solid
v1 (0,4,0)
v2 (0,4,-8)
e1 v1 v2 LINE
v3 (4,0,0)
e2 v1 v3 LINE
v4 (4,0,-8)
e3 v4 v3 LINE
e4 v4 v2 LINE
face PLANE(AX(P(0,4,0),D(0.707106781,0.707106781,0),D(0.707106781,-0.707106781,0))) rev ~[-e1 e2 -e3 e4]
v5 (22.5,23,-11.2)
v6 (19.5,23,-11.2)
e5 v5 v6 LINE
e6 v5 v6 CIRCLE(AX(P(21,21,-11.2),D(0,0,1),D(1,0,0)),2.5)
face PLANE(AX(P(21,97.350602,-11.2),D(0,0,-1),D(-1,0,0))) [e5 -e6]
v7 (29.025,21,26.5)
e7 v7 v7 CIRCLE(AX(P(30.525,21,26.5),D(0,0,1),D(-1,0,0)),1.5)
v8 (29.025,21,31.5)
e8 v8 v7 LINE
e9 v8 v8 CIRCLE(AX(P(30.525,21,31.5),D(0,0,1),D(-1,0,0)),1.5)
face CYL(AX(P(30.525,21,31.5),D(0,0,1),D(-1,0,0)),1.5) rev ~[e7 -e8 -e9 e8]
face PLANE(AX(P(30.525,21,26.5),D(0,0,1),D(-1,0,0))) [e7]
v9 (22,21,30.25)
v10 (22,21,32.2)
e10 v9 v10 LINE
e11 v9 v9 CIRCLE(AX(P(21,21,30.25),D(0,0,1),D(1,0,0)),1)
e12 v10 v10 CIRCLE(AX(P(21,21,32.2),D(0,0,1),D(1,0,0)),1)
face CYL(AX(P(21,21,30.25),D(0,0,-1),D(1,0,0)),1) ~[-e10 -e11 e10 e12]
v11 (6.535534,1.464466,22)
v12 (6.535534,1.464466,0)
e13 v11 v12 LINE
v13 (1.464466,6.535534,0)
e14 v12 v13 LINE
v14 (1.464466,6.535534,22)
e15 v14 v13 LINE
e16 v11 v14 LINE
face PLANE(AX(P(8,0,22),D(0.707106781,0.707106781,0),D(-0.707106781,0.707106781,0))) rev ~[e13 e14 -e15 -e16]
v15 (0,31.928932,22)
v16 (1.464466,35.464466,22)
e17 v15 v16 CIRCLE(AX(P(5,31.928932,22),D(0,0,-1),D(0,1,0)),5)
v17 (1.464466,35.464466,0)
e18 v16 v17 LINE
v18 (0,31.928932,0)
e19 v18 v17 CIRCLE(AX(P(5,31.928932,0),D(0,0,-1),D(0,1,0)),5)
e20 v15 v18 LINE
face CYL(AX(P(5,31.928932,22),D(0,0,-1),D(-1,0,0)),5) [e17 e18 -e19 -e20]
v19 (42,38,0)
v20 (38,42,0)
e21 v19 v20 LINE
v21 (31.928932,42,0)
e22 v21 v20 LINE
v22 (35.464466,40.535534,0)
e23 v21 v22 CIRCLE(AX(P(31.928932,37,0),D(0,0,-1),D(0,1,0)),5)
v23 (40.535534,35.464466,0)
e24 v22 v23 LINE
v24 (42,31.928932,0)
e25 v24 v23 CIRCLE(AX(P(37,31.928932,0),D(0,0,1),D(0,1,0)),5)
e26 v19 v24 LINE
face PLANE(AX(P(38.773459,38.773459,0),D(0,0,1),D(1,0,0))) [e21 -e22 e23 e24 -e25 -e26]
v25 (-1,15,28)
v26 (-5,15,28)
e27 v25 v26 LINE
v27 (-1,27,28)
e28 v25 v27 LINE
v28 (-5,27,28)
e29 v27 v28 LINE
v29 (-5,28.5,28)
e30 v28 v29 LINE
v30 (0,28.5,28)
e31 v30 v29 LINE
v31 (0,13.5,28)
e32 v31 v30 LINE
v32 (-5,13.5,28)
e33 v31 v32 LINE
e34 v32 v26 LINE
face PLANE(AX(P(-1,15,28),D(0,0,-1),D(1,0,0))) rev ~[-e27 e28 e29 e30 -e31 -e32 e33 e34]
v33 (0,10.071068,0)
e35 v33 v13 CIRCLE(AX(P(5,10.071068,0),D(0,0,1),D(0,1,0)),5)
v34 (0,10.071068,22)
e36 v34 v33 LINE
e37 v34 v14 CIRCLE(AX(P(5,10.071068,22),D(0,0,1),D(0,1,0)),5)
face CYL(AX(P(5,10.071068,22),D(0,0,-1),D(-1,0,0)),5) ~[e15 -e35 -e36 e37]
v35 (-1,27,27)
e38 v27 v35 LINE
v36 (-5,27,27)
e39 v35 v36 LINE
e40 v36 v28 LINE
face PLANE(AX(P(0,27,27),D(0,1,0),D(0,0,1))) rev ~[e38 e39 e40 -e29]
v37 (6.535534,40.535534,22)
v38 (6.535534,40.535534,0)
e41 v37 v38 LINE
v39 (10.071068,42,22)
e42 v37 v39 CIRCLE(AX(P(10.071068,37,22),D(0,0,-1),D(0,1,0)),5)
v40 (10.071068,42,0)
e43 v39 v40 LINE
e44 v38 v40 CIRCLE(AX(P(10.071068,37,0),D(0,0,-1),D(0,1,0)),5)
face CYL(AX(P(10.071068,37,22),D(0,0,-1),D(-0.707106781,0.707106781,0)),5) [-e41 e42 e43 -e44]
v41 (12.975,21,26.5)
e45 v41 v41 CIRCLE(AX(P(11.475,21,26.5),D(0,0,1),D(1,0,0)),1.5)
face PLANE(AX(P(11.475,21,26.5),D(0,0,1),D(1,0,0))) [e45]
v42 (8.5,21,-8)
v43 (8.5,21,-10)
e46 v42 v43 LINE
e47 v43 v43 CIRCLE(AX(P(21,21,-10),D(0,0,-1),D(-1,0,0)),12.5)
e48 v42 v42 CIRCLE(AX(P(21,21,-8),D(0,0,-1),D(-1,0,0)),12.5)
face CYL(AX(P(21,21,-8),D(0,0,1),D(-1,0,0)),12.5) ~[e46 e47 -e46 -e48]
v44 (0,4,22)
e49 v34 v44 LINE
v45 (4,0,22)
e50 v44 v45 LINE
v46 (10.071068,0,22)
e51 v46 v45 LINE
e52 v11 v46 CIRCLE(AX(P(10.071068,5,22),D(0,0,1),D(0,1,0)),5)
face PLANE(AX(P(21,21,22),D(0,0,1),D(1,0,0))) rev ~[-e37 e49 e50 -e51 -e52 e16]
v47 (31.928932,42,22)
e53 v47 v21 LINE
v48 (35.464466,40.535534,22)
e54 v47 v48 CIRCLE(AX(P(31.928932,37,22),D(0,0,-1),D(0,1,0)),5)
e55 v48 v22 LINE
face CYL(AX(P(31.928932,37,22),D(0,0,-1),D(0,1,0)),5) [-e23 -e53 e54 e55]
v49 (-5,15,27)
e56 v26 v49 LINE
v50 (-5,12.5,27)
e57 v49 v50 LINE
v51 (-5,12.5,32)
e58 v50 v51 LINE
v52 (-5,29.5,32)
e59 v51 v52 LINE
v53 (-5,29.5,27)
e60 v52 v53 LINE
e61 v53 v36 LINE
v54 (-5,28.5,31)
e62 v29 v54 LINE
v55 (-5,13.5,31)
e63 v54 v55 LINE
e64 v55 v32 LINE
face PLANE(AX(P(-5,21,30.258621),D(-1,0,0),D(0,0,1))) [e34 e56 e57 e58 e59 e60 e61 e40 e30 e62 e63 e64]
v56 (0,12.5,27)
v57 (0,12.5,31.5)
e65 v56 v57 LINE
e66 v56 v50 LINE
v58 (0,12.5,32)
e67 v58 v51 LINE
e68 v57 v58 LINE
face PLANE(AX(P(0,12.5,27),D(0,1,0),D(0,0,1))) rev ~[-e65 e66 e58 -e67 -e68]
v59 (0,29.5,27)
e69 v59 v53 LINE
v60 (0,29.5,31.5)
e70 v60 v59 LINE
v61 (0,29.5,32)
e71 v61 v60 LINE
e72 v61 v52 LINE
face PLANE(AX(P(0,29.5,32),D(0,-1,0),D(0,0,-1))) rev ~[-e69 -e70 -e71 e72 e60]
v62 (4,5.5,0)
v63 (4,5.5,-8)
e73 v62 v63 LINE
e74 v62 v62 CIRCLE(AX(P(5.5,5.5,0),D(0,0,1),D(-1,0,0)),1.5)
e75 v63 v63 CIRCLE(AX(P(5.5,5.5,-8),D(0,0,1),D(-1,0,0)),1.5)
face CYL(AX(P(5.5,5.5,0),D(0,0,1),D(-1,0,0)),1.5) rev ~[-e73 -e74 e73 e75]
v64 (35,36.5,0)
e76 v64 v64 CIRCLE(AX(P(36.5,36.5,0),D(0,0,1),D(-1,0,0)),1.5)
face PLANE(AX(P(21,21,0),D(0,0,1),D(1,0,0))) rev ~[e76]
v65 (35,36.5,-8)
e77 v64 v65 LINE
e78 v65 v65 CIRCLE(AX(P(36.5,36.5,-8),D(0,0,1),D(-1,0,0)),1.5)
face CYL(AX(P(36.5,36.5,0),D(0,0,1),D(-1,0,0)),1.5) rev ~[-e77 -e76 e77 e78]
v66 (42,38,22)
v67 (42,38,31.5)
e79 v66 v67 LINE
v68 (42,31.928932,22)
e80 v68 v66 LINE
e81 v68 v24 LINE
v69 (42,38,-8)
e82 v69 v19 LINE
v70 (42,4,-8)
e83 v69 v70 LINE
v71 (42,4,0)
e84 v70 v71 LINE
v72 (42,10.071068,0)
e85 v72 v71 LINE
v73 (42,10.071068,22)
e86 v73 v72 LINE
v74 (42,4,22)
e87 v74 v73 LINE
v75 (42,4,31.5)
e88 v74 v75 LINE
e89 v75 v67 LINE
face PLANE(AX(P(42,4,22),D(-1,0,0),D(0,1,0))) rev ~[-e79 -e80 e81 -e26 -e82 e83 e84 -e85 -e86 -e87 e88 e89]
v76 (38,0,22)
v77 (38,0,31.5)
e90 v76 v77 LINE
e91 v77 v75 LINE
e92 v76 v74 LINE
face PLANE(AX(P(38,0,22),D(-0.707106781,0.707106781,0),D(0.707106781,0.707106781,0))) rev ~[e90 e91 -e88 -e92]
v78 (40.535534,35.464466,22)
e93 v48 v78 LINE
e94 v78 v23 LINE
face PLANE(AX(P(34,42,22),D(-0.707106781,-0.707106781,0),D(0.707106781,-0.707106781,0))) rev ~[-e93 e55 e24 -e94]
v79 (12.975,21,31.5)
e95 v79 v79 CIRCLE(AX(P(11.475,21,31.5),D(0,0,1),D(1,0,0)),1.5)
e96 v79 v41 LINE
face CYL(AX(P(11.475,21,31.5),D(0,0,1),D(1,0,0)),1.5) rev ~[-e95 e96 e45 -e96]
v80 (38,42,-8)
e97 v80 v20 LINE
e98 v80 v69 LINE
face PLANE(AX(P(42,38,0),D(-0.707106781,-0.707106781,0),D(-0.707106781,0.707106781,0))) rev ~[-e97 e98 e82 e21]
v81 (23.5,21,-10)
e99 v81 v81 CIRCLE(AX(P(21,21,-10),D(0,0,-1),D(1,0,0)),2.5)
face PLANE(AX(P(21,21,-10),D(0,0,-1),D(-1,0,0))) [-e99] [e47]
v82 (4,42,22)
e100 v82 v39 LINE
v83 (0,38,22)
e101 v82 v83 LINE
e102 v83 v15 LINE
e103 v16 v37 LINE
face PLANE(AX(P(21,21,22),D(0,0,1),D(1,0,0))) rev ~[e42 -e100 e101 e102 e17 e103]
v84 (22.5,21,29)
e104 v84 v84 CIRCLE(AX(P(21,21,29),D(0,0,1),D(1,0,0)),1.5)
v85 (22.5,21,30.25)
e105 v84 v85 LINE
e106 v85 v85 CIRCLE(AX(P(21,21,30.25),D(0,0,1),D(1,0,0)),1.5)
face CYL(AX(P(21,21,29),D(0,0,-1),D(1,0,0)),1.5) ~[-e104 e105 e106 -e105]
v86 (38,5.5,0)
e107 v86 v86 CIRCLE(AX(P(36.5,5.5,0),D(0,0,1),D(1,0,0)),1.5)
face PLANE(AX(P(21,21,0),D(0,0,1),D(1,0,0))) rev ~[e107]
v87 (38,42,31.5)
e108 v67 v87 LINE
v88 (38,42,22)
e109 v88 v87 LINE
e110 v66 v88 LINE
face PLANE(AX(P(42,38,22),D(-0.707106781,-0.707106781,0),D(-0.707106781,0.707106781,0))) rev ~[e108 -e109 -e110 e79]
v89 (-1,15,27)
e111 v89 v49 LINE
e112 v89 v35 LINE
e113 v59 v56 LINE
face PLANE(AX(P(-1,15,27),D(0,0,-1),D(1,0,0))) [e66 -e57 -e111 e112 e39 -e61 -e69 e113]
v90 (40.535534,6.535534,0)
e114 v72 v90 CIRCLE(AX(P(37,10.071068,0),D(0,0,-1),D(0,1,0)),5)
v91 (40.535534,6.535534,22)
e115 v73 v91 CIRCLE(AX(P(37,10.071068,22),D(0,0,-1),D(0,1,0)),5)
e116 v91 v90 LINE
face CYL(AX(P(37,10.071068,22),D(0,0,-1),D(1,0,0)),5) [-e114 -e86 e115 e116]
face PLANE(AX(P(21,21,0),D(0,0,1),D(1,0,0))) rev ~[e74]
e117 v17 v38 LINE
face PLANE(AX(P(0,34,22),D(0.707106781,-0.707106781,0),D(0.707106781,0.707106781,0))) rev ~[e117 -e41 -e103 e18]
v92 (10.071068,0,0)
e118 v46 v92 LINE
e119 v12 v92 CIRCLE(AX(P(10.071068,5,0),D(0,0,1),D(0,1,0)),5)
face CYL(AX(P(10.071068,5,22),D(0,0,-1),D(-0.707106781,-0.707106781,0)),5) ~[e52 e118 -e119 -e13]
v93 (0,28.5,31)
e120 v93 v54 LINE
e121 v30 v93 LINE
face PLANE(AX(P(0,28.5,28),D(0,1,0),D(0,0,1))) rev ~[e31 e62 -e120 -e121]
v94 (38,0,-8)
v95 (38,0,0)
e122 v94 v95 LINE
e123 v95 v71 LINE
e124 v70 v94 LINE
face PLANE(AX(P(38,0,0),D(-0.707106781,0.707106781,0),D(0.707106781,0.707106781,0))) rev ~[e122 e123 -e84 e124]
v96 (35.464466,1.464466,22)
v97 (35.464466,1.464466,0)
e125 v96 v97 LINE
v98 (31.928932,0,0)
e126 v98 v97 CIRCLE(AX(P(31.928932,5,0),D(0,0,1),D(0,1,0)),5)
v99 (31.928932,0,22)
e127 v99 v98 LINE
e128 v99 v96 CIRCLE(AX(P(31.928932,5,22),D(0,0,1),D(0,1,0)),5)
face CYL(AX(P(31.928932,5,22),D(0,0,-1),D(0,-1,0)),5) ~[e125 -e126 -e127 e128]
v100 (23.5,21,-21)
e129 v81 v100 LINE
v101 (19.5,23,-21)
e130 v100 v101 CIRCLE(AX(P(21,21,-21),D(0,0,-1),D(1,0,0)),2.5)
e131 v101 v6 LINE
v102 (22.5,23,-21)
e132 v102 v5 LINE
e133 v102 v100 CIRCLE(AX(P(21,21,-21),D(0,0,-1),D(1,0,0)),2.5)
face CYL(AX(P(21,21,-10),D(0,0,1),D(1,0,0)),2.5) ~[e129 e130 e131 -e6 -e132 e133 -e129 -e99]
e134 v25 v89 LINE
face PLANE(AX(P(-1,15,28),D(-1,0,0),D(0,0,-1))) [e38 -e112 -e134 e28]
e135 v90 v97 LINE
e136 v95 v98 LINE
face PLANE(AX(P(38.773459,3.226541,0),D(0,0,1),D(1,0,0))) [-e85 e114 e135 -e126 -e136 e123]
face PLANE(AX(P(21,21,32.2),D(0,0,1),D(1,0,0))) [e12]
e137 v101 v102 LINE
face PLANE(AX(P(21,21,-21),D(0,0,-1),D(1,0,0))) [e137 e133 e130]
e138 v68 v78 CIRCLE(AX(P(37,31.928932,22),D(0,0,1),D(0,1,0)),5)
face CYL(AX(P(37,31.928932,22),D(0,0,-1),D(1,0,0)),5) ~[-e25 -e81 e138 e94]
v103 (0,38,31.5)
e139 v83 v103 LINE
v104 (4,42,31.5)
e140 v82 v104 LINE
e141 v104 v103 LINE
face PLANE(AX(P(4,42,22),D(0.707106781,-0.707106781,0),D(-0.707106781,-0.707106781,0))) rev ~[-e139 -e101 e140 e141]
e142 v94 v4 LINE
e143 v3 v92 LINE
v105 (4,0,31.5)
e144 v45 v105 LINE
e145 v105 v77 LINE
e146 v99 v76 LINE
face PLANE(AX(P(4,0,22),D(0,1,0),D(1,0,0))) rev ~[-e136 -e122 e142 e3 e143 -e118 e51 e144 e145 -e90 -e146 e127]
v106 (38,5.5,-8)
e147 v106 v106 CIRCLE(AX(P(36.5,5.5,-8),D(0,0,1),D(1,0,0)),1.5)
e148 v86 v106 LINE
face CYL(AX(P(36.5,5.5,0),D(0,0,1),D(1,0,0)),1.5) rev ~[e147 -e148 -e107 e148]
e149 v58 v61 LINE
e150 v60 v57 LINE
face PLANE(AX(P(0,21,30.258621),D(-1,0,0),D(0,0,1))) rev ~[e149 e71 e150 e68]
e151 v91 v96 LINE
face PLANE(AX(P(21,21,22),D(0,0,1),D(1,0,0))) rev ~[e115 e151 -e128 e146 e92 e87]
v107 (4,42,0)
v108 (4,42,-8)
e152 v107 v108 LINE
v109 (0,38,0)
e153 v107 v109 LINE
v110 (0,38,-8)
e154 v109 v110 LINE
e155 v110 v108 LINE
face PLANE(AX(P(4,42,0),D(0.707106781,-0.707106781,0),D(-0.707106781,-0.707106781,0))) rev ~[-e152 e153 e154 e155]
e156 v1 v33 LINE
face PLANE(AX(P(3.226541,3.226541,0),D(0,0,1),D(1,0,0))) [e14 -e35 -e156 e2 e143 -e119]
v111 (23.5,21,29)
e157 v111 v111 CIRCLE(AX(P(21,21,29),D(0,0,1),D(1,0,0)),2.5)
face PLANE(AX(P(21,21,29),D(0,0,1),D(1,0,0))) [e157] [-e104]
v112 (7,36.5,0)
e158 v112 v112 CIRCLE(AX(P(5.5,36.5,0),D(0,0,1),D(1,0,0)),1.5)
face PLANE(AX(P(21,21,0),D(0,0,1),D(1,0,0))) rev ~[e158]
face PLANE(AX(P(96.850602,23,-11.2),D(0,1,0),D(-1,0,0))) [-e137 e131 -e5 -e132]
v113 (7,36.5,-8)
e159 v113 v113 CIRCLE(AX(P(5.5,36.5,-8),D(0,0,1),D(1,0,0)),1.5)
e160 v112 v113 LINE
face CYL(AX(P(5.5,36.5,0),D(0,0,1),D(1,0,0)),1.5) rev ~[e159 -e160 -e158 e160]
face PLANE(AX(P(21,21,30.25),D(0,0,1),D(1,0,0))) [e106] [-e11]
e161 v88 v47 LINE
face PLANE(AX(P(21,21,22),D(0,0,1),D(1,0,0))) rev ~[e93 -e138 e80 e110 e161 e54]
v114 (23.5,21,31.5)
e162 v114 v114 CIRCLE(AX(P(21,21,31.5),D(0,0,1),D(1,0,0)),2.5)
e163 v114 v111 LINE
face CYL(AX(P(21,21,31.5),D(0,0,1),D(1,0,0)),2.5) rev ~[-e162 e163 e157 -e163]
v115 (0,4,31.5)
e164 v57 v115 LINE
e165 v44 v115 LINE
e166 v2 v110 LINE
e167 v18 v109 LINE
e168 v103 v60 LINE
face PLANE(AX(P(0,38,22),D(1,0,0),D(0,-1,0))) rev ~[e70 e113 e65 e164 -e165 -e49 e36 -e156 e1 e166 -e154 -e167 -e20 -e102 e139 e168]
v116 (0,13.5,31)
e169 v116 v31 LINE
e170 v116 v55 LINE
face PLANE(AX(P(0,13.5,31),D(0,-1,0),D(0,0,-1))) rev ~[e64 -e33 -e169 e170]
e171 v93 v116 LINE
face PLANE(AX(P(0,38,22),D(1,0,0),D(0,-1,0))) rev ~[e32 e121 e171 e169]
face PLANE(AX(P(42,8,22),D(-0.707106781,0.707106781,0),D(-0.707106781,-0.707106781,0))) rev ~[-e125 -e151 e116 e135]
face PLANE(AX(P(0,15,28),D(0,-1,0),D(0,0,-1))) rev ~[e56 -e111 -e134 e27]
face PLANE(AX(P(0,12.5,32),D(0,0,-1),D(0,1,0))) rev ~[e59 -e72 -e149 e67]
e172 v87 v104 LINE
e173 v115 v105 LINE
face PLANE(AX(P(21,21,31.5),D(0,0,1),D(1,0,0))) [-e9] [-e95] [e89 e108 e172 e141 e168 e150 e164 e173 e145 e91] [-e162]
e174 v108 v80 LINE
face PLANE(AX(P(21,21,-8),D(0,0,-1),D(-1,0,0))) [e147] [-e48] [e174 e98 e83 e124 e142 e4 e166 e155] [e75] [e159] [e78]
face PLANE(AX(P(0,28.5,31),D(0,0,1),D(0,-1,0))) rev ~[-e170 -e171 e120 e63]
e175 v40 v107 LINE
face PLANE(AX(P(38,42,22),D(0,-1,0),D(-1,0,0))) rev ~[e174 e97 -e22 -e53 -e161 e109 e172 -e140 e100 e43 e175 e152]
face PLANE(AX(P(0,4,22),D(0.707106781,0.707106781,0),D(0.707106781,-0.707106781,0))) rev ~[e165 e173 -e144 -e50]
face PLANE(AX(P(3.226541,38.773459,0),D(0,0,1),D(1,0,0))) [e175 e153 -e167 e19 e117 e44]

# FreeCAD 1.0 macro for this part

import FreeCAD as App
import Part
import Sketcher

V = App.Vector
Q = App.Units.Quantity


def edges_at(feature, points):
    """Names of the edges that pass closest to the given points."""
    edges = feature.Shape.Edges
    near = lambda p: min(range(len(edges)), key=lambda i: edges[i].distToShape(Part.Vertex(*p))[0])
    return sorted({f"Edge{near(p) + 1}" for p in points})

doc = App.newDocument("Part")
body = doc.addObject("PartDesign::Body", "Body")

# Sketch on XY plane
sketch1 = body.newObject("Sketcher::SketchObject", "Sketch")
sketch1.AttachmentSupport = (doc.getObject("XY_Plane"), [""])
sketch1.MapMode = "FlatFace"
sketch1.addGeometry([
    Part.LineSegment(V(4, 42, 0), V(0, 38, 0)),  # 0
    Part.LineSegment(V(0, 38, 0), V(0, 4, 0)),  # 1
    Part.LineSegment(V(0, 4, 0), V(4, 0, 0)),  # 2
    Part.LineSegment(V(4, 0, 0), V(38, 0, 0)),  # 3
    Part.LineSegment(V(38, 0, 0), V(42, 4, 0)),  # 4
    Part.LineSegment(V(42, 4, 0), V(42, 38, 0)),  # 5
    Part.LineSegment(V(42, 38, 0), V(38, 42, 0)),  # 6
    Part.LineSegment(V(38, 42, 0), V(4, 42, 0)),  # 7
], False)
sketch1.addConstraint([
    Sketcher.Constraint("Coincident", 0, 2, 1, 1),
    Sketcher.Constraint("Coincident", 1, 2, 2, 1),
    Sketcher.Constraint("Coincident", 2, 2, 3, 1),
    Sketcher.Constraint("Coincident", 3, 2, 4, 1),
    Sketcher.Constraint("Coincident", 4, 2, 5, 1),
    Sketcher.Constraint("Coincident", 5, 2, 6, 1),
    Sketcher.Constraint("Coincident", 6, 2, 7, 1),
    Sketcher.Constraint("Coincident", 7, 2, 0, 1),
    Sketcher.Constraint("Vertical", 1),
    Sketcher.Constraint("Horizontal", 3),
    Sketcher.Constraint("Vertical", 5),
    Sketcher.Constraint("Horizontal", 7),
    Sketcher.Constraint("PointOnObject", 0, 2, -2),
    Sketcher.Constraint("PointOnObject", 2, 2, -1),
    Sketcher.Constraint("Perpendicular", 0, 2),
    Sketcher.Constraint("Perpendicular", 2, 4),
    Sketcher.Constraint("Perpendicular", 4, 6),
    Sketcher.Constraint("Horizontal", 1, 2, 4, 2),
    Sketcher.Constraint("Horizontal", 0, 2, 5, 2),
    Sketcher.Constraint("Vertical", 3, 2, 6, 2),
    Sketcher.Constraint("Vertical", 2, 2, 7, 2),
    Sketcher.Constraint("Equal", 7, 1),
    Sketcher.Constraint("DistanceX", 3, 1, 3, 2, Q("34 mm")),
    Sketcher.Constraint("DistanceY", -1, 1, 0, 2, Q("38 mm")),
])
pad1 = body.newObject("PartDesign::Pad", "Pad")
pad1.Profile = sketch1
pad1.Length = 8
pad1.Reversed = True

# Sketch on XY plane
sketch2 = body.newObject("Sketcher::SketchObject", "Sketch001")
sketch2.AttachmentSupport = (doc.getObject("XY_Plane"), [""])
sketch2.MapMode = "FlatFace"
sketch2.addGeometry(Part.Circle(V(5.5, 36.5, 0), V(0, 0, 1), 1.5), False)
sketch2.addConstraint([
    Sketcher.Constraint("Diameter", 0, Q("3 mm")),
    Sketcher.Constraint("DistanceX", -1, 1, 0, 3, Q("5.5 mm")),
    Sketcher.Constraint("DistanceY", -1, 1, 0, 3, Q("36.5 mm")),
])
pocket1 = body.newObject("PartDesign::Pocket", "Pocket")
pocket1.Profile = sketch2
pocket1.Type = "UpToFirst"

# Sketch on XY plane
sketch3 = body.newObject("Sketcher::SketchObject", "Sketch002")
sketch3.AttachmentSupport = (doc.getObject("XY_Plane"), [""])
sketch3.MapMode = "FlatFace"
sketch3.addGeometry(Part.Circle(V(5.5, 5.5, 0), V(0, 0, 1), 1.5), False)
sketch3.addConstraint([
    Sketcher.Constraint("Diameter", 0, Q("3 mm")),
    Sketcher.Constraint("DistanceX", -1, 1, 0, 3, Q("5.5 mm")),
    Sketcher.Constraint("DistanceY", -1, 1, 0, 3, Q("5.5 mm")),
])
pocket2 = body.newObject("PartDesign::Pocket", "Pocket001")
pocket2.Profile = sketch3
pocket2.Type = "UpToFirst"

# Sketch on XY plane
sketch4 = body.newObject("Sketcher::SketchObject", "Sketch003")
sketch4.AttachmentSupport = (doc.getObject("XY_Plane"), [""])
sketch4.MapMode = "FlatFace"
sketch4.addGeometry(Part.Circle(V(36.5, 36.5, 0), V(0, 0, 1), 1.5), False)
sketch4.addConstraint([
    Sketcher.Constraint("Diameter", 0, Q("3 mm")),
    Sketcher.Constraint("DistanceX", -1, 1, 0, 3, Q("36.5 mm")),
    Sketcher.Constraint("DistanceY", -1, 1, 0, 3, Q("36.5 mm")),
])
pocket3 = body.newObject("PartDesign::Pocket", "Pocket002")
pocket3.Profile = sketch4
pocket3.Type = "UpToFirst"

# Sketch on XY plane
sketch5 = body.newObject("Sketcher::SketchObject", "Sketch004")
sketch5.AttachmentSupport = (doc.getObject("XY_Plane"), [""])
sketch5.MapMode = "FlatFace"
sketch5.addGeometry(Part.Circle(V(36.5, 5.5, 0), V(0, 0, 1), 1.5), False)
sketch5.addConstraint([
    Sketcher.Constraint("Diameter", 0, Q("3 mm")),
    Sketcher.Constraint("DistanceX", -1, 1, 0, 3, Q("36.5 mm")),
    Sketcher.Constraint("DistanceY", -1, 1, 0, 3, Q("5.5 mm")),
])
pocket4 = body.newObject("PartDesign::Pocket", "Pocket003")
pocket4.Profile = sketch5
pocket4.Type = "UpToFirst"

# Sketch on XY plane
sketch6 = body.newObject("Sketcher::SketchObject", "Sketch005")
sketch6.AttachmentSupport = (doc.getObject("XY_Plane"), [""])
sketch6.MapMode = "FlatFace"
sketch6.addGeometry([
    Part.LineSegment(V(0, 4, 0), V(4, 0, 0)),  # 0
    Part.LineSegment(V(4, 0, 0), V(38, 0, 0)),  # 1
    Part.LineSegment(V(38, 0, 0), V(42, 4, 0)),  # 2
    Part.LineSegment(V(42, 4, 0), V(42, 38, 0)),  # 3
    Part.LineSegment(V(42, 38, 0), V(38, 42, 0)),  # 4
    Part.LineSegment(V(38, 42, 0), V(4, 42, 0)),  # 5
    Part.LineSegment(V(4, 42, 0), V(0, 38, 0)),  # 6
    Part.LineSegment(V(0, 38, 0), V(0, 4, 0)),  # 7
], False)
sketch6.addConstraint([
    Sketcher.Constraint("Coincident", 0, 2, 1, 1),
    Sketcher.Constraint("Coincident", 1, 2, 2, 1),
    Sketcher.Constraint("Coincident", 2, 2, 3, 1),
    Sketcher.Constraint("Coincident", 3, 2, 4, 1),
    Sketcher.Constraint("Coincident", 4, 2, 5, 1),
    Sketcher.Constraint("Coincident", 5, 2, 6, 1),
    Sketcher.Constraint("Coincident", 6, 2, 7, 1),
    Sketcher.Constraint("Coincident", 7, 2, 0, 1),
    Sketcher.Constraint("Horizontal", 1),
    Sketcher.Constraint("Vertical", 3),
    Sketcher.Constraint("Horizontal", 5),
    Sketcher.Constraint("Vertical", 7),
    Sketcher.Constraint("PointOnObject", 0, 2, -1),
    Sketcher.Constraint("PointOnObject", 6, 2, -2),
    Sketcher.Constraint("Perpendicular", 0, 2),
    Sketcher.Constraint("Perpendicular", 2, 4),
    Sketcher.Constraint("Perpendicular", 4, 6),
    Sketcher.Constraint("Horizontal", 3, 2, 6, 2),
    Sketcher.Constraint("Horizontal", 2, 2, 7, 2),
    Sketcher.Constraint("Vertical", 1, 2, 4, 2),
    Sketcher.Constraint("Vertical", 0, 2, 5, 2),
    Sketcher.Constraint("Equal", 5, 3),
    Sketcher.Constraint("DistanceX", 1, 1, 1, 2, Q("34 mm")),
    Sketcher.Constraint("DistanceX", -1, 1, 0, 2, Q("4 mm")),
])
pad2 = body.newObject("PartDesign::Pad", "Pad001")
pad2.Profile = sketch6
pad2.Length = 22

# Sketch on XY plane
sketch7 = body.newObject("Sketcher::SketchObject", "Sketch006")
sketch7.AttachmentSupport = (doc.getObject("XY_Plane"), [""])
sketch7.MapMode = "FlatFace"
sketch7.AttachmentOffset = App.Placement(V(0, 0, 22), App.Rotation())
sketch7.addGeometry([
    Part.LineSegment(V(8, 0, 0), V(0, 8, 0)),  # 0
    Part.LineSegment(V(0, 8, 0), V(0, 4, 0)),  # 1
    Part.LineSegment(V(0, 4, 0), V(4, 0, 0)),  # 2
    Part.LineSegment(V(4, 0, 0), V(8, 0, 0)),  # 3
    Part.LineSegment(V(42, 8, 0), V(34, 0, 0)),  # 4
    Part.LineSegment(V(34, 0, 0), V(38, 0, 0)),  # 5
    Part.LineSegment(V(38, 0, 0), V(42, 4, 0)),  # 6
    Part.LineSegment(V(42, 4, 0), V(42, 8, 0)),  # 7
    Part.LineSegment(V(38, 42, 0), V(34, 42, 0)),  # 8
    Part.LineSegment(V(34, 42, 0), V(42, 34, 0)),  # 9
    Part.LineSegment(V(42, 34, 0), V(42, 38, 0)),  # 10
    Part.LineSegment(V(42, 38, 0), V(38, 42, 0)),  # 11
    Part.LineSegment(V(0, 38, 0), V(0, 34, 0)),  # 12
    Part.LineSegment(V(0, 34, 0), V(8, 42, 0)),  # 13
    Part.LineSegment(V(8, 42, 0), V(4, 42, 0)),  # 14
    Part.LineSegment(V(4, 42, 0), V(0, 38, 0)),  # 15
], False)
sketch7.addConstraint([
    Sketcher.Constraint("Coincident", 0, 2, 1, 1),
    Sketcher.Constraint("Coincident", 1, 2, 2, 1),
    Sketcher.Constraint("Coincident", 2, 2, 3, 1),
    Sketcher.Constraint("Coincident", 3, 2, 0, 1),
    Sketcher.Constraint("Coincident", 4, 2, 5, 1),
    Sketcher.Constraint("Coincident", 5, 2, 6, 1),
    Sketcher.Constraint("Coincident", 6, 2, 7, 1),
    Sketcher.Constraint("Coincident", 7, 2, 4, 1),
    Sketcher.Constraint("Coincident", 8, 2, 9, 1),
    Sketcher.Constraint("Coincident", 9, 2, 10, 1),
    Sketcher.Constraint("Coincident", 10, 2, 11, 1),
    Sketcher.Constraint("Coincident", 11, 2, 8, 1),
    Sketcher.Constraint("Coincident", 12, 2, 13, 1),
    Sketcher.Constraint("Coincident", 13, 2, 14, 1),
    Sketcher.Constraint("Coincident", 14, 2, 15, 1),
    Sketcher.Constraint("Coincident", 15, 2, 12, 1),
    Sketcher.Constraint("Vertical", 1),
    Sketcher.Constraint("Horizontal", 3),
    Sketcher.Constraint("Horizontal", 5),
    Sketcher.Constraint("Vertical", 7),
    Sketcher.Constraint("Horizontal", 8),
    Sketcher.Constraint("Vertical", 10),
    Sketcher.Constraint("Vertical", 12),
    Sketcher.Constraint("Horizontal", 14),
    Sketcher.Constraint("PointOnObject", 0, 2, -2),
    Sketcher.Constraint("PointOnObject", 2, 2, -1),
    Sketcher.Constraint("PointOnObject", 4, 2, -1),
    Sketcher.Constraint("PointOnObject", 12, 2, -2),
    Sketcher.Constraint("Parallel", 0, 2),
    Sketcher.Constraint("Perpendicular", 2, 4),
    Sketcher.Constraint("Parallel", 4, 6),
    Sketcher.Constraint("Perpendicular", 6, 9),
    Sketcher.Constraint("Parallel", 9, 11),
    Sketcher.Constraint("Perpendicular", 11, 13),
    Sketcher.Constraint("Parallel", 13, 15),
    Sketcher.Constraint("Horizontal", 1, 2, 6, 2),
    Sketcher.Constraint("Horizontal", 0, 2, 7, 2),
    Sketcher.Constraint("Horizontal", 9, 2, 12, 2),
    Sketcher.Constraint("Horizontal", 11, 2, 13, 2),
    Sketcher.Constraint("Horizontal", 10, 2, 15, 2),
    Sketcher.Constraint("Vertical", 4, 2, 8, 2),
    Sketcher.Constraint("Vertical", 7, 2, 9, 2),
    Sketcher.Constraint("Vertical", 5, 2, 11, 2),
    Sketcher.Constraint("Vertical", 3, 2, 13, 2),
    Sketcher.Constraint("DistanceX", 3, 1, 3, 2, Q("4 mm")),
    Sketcher.Constraint("DistanceY", -1, 1, 0, 2, Q("8 mm")),
    Sketcher.Constraint("DistanceX", -1, 1, 4, 2, Q("34 mm")),
    Sketcher.Constraint("DistanceY", -1, 1, 8, 2, Q("42 mm")),
])
pocket5 = body.newObject("PartDesign::Pocket", "Pocket004")
pocket5.Profile = sketch7
pocket5.Length = 22

# Sketch on XY plane
sketch8 = body.newObject("Sketcher::SketchObject", "Sketch007")
sketch8.AttachmentSupport = (doc.getObject("XY_Plane"), [""])
sketch8.MapMode = "FlatFace"
sketch8.AttachmentOffset = App.Placement(V(0, 0, 22), App.Rotation())
sketch8.addGeometry([
    Part.LineSegment(V(0, 38, 0), V(0, 4, 0)),  # 0
    Part.LineSegment(V(0, 4, 0), V(4, 0, 0)),  # 1
    Part.LineSegment(V(4, 0, 0), V(38, 0, 0)),  # 2
    Part.LineSegment(V(38, 0, 0), V(42, 4, 0)),  # 3
    Part.LineSegment(V(42, 4, 0), V(42, 38, 0)),  # 4
    Part.LineSegment(V(42, 38, 0), V(38, 42, 0)),  # 5
    Part.LineSegment(V(38, 42, 0), V(4, 42, 0)),  # 6
    Part.LineSegment(V(4, 42, 0), V(0, 38, 0)),  # 7
], False)
sketch8.addConstraint([
    Sketcher.Constraint("Coincident", 0, 2, 1, 1),
    Sketcher.Constraint("Coincident", 1, 2, 2, 1),
    Sketcher.Constraint("Coincident", 2, 2, 3, 1),
    Sketcher.Constraint("Coincident", 3, 2, 4, 1),
    Sketcher.Constraint("Coincident", 4, 2, 5, 1),
    Sketcher.Constraint("Coincident", 5, 2, 6, 1),
    Sketcher.Constraint("Coincident", 6, 2, 7, 1),
    Sketcher.Constraint("Coincident", 7, 2, 0, 1),
    Sketcher.Constraint("Vertical", 0),
    Sketcher.Constraint("Horizontal", 2),
    Sketcher.Constraint("Vertical", 4),
    Sketcher.Constraint("Horizontal", 6),
    Sketcher.Constraint("PointOnObject", 0, 2, -2),
    Sketcher.Constraint("PointOnObject", 1, 2, -1),
    Sketcher.Constraint("Perpendicular", 1, 3),
    Sketcher.Constraint("Perpendicular", 3, 5),
    Sketcher.Constraint("Perpendicular", 5, 7),
    Sketcher.Constraint("Horizontal", 0, 2, 3, 2),
    Sketcher.Constraint("Horizontal", 4, 2, 7, 2),
    Sketcher.Constraint("Vertical", 2, 2, 5, 2),
    Sketcher.Constraint("Vertical", 1, 2, 6, 2),
    Sketcher.Constraint("Equal", 6, 0),
    Sketcher.Constraint("DistanceX", 2, 1, 2, 2, Q("34 mm")),
    Sketcher.Constraint("DistanceY", -1, 1, 0, 2, Q("4 mm")),
])
pad3 = body.newObject("PartDesign::Pad", "Pad002")
pad3.Profile = sketch8
pad3.Length = 9.5

# Sketch on XY plane
sketch9 = body.newObject("Sketcher::SketchObject", "Sketch008")
sketch9.AttachmentSupport = (doc.getObject("XY_Plane"), [""])
sketch9.MapMode = "FlatFace"
sketch9.AttachmentOffset = App.Placement(V(0, 0, 31.5), App.Rotation())
sketch9.addGeometry([
    Part.Circle(V(11.5, 21, 0), V(0, 0, 1), 1.5),
    Part.Circle(V(30.5, 21, 0), V(0, 0, 1), 1.5),
], False)
sketch9.addConstraint([
    Sketcher.Constraint("Equal", 0, 1),
    Sketcher.Constraint("Horizontal", 0, 3, 1, 3),
    Sketcher.Constraint("Diameter", 0, Q("3 mm")),
    Sketcher.Constraint("DistanceY", -1, 1, 0, 3, Q("21 mm")),
    Sketcher.Constraint("DistanceX", 0, 3, 1, 3, Q("19.05 mm")),
    Sketcher.Constraint("DistanceX", -1, 1, 0, 3, Q("11.475 mm")),
])
pocket6 = body.newObject("PartDesign::Pocket", "Pocket005")
pocket6.Profile = sketch9
pocket6.Length = 5

# Sketch on XY plane
sketch10 = body.newObject("Sketcher::SketchObject", "Sketch009")
sketch10.AttachmentSupport = (doc.getObject("XY_Plane"), [""])
sketch10.MapMode = "FlatFace"
sketch10.AttachmentOffset = App.Placement(V(0, 0, 31.5), App.Rotation())
sketch10.addGeometry(Part.Circle(V(21, 21, 0), V(0, 0, 1), 2.5), False)
sketch10.addConstraint([
    Sketcher.Constraint("Diameter", 0, Q("5 mm")),
    Sketcher.Constraint("DistanceX", -1, 1, 0, 3, Q("21 mm")),
    Sketcher.Constraint("DistanceY", -1, 1, 0, 3, Q("21 mm")),
])
pocket7 = body.newObject("PartDesign::Pocket", "Pocket006")
pocket7.Profile = sketch10
pocket7.Length = 2.5

# Sketch on XY plane
sketch11 = body.newObject("Sketcher::SketchObject", "Sketch010")
sketch11.AttachmentSupport = (doc.getObject("XY_Plane"), [""])
sketch11.MapMode = "FlatFace"
sketch11.AttachmentOffset = App.Placement(V(0, 0, 29), App.Rotation())
sketch11.addGeometry(Part.Circle(V(21, 21, 0), V(0, 0, 1), 1.5), False)
sketch11.addConstraint([
    Sketcher.Constraint("Diameter", 0, Q("3 mm")),
    Sketcher.Constraint("DistanceX", -1, 1, 0, 3, Q("21 mm")),
    Sketcher.Constraint("DistanceY", -1, 1, 0, 3, Q("21 mm")),
])
pad4 = body.newObject("PartDesign::Pad", "Pad003")
pad4.Profile = sketch11
pad4.Length = 1.25

# Sketch on XY plane
sketch12 = body.newObject("Sketcher::SketchObject", "Sketch011")
sketch12.AttachmentSupport = (doc.getObject("XY_Plane"), [""])
sketch12.MapMode = "FlatFace"
sketch12.AttachmentOffset = App.Placement(V(0, 0, 30.25), App.Rotation())
sketch12.addGeometry(Part.Circle(V(21, 21, 0), V(0, 0, 1), 1), False)
sketch12.addConstraint([
    Sketcher.Constraint("Diameter", 0, Q("2 mm")),
    Sketcher.Constraint("DistanceX", -1, 1, 0, 3, Q("21 mm")),
    Sketcher.Constraint("DistanceY", -1, 1, 0, 3, Q("21 mm")),
])
pad5 = body.newObject("PartDesign::Pad", "Pad004")
pad5.Profile = sketch12
pad5.Length = 1.95
doc.recompute()

fillet = body.newObject("PartDesign::Fillet", "Fillet")
fillet.Base = (pad5, edges_at(pad5, [
    (42, 8, 11),
    (34, 0, 11),
    (0, 8, 11),
    (8, 0, 11),
    (0, 34, 11),
    (8, 42, 11),
    (42, 34, 11),
    (34, 42, 11),
]))
fillet.Radius = 5

# Sketch on XY plane
sketch13 = body.newObject("Sketcher::SketchObject", "Sketch012")
sketch13.AttachmentSupport = (doc.getObject("XY_Plane"), [""])
sketch13.MapMode = "FlatFace"
sketch13.AttachmentOffset = App.Placement(V(0, 0, -8), App.Rotation())
sketch13.addGeometry(Part.Circle(V(21, 21, 0), V(0, 0, 1), 12), False)
sketch13.addConstraint([
    Sketcher.Constraint("Diameter", 0, Q("25 mm")),
    Sketcher.Constraint("DistanceX", -1, 1, 0, 3, Q("21 mm")),
    Sketcher.Constraint("DistanceY", -1, 1, 0, 3, Q("21 mm")),
])
pad6 = body.newObject("PartDesign::Pad", "Pad005")
pad6.Profile = sketch13
pad6.Length = 2
pad6.Reversed = True

# Sketch on XY plane
sketch14 = body.newObject("Sketcher::SketchObject", "Sketch013")
sketch14.AttachmentSupport = (doc.getObject("XY_Plane"), [""])
sketch14.MapMode = "FlatFace"
sketch14.AttachmentOffset = App.Placement(V(0, 0, -10), App.Rotation())
sketch14.addGeometry(Part.Circle(V(21, 21, 0), V(0, 0, 1), 2.5), False)
sketch14.addConstraint([
    Sketcher.Constraint("Diameter", 0, Q("5 mm")),
    Sketcher.Constraint("DistanceX", -1, 1, 0, 3, Q("21 mm")),
    Sketcher.Constraint("DistanceY", -1, 1, 0, 3, Q("21 mm")),
])
pad7 = body.newObject("PartDesign::Pad", "Pad006")
pad7.Profile = sketch14
pad7.Length = 11
pad7.Reversed = True

# Sketch on XY plane
sketch15 = body.newObject("Sketcher::SketchObject", "Sketch014")
sketch15.AttachmentSupport = (doc.getObject("XY_Plane"), [""])
sketch15.MapMode = "FlatFace"
sketch15.AttachmentOffset = App.Placement(V(0, 0, -21), App.Rotation())
sketch15.addGeometry([
    Part.LineSegment(V(97, 23, 0), V(-55, 23, 0)),
    Part.LineSegment(V(-55, 23, 0), V(-55, 172, 0)),
    Part.LineSegment(V(-55, 172, 0), V(97, 172, 0)),
    Part.LineSegment(V(97, 172, 0), V(97, 23, 0)),
], False)
sketch15.addConstraint([
    Sketcher.Constraint("Coincident", 0, 2, 1, 1),
    Sketcher.Constraint("Coincident", 1, 2, 2, 1),
    Sketcher.Constraint("Coincident", 2, 2, 3, 1),
    Sketcher.Constraint("Coincident", 3, 2, 0, 1),
    Sketcher.Constraint("Horizontal", 0),
    Sketcher.Constraint("Vertical", 1),
    Sketcher.Constraint("Horizontal", 2),
    Sketcher.Constraint("Vertical", 3),
    Sketcher.Constraint("DistanceY", -1, 1, 0, 2, Q("23 mm")),
    Sketcher.Constraint("DistanceX", 0, 2, 0, 1, Q("151.701204 mm")),
    Sketcher.Constraint("DistanceY", 1, 1, 1, 2, Q("148.701204 mm")),
    Sketcher.Constraint("DistanceX", 0, 2, -1, 1, Q("54.850602 mm")),
])
pocket8 = body.newObject("PartDesign::Pocket", "Pocket007")
pocket8.Profile = sketch15
pocket8.Type = "TwoLengths"
pocket8.Length = 80.738573
pocket8.Length2 = 9.8

# Sketch on YZ plane
sketch16 = body.newObject("Sketcher::SketchObject", "Sketch015")
sketch16.AttachmentSupport = (doc.getObject("YZ_Plane"), [""])
sketch16.MapMode = "FlatFace"
sketch16.addGeometry([
    Part.LineSegment(V(15, 27, 0), V(12.5, 27, 0)),  # 0
    Part.LineSegment(V(12.5, 27, 0), V(12.5, 32, 0)),  # 1
    Part.LineSegment(V(12.5, 32, 0), V(29.5, 32, 0)),  # 2
    Part.LineSegment(V(29.5, 32, 0), V(29.5, 27, 0)),  # 3
    Part.LineSegment(V(29.5, 27, 0), V(27, 27, 0)),  # 4
    Part.LineSegment(V(27, 27, 0), V(27, 28, 0)),  # 5
    Part.LineSegment(V(27, 28, 0), V(28.5, 28, 0)),  # 6
    Part.LineSegment(V(28.5, 28, 0), V(28.5, 31, 0)),  # 7
    Part.LineSegment(V(28.5, 31, 0), V(13.5, 31, 0)),  # 8
    Part.LineSegment(V(13.5, 31, 0), V(13.5, 28, 0)),  # 9
    Part.LineSegment(V(13.5, 28, 0), V(15, 28, 0)),  # 10
    Part.LineSegment(V(15, 28, 0), V(15, 27, 0)),  # 11
], False)
sketch16.addConstraint([
    Sketcher.Constraint("Coincident", 0, 2, 1, 1),
    Sketcher.Constraint("Coincident", 1, 2, 2, 1),
    Sketcher.Constraint("Coincident", 2, 2, 3, 1),
    Sketcher.Constraint("Coincident", 3, 2, 4, 1),
    Sketcher.Constraint("Coincident", 4, 2, 5, 1),
    Sketcher.Constraint("Coincident", 5, 2, 6, 1),
    Sketcher.Constraint("Coincident", 6, 2, 7, 1),
    Sketcher.Constraint("Coincident", 7, 2, 8, 1),
    Sketcher.Constraint("Coincident", 8, 2, 9, 1),
    Sketcher.Constraint("Coincident", 9, 2, 10, 1),
    Sketcher.Constraint("Coincident", 10, 2, 11, 1),
    Sketcher.Constraint("Coincident", 11, 2, 0, 1),
    Sketcher.Constraint("Horizontal", 0),
    Sketcher.Constraint("Vertical", 1),
    Sketcher.Constraint("Horizontal", 2),
    Sketcher.Constraint("Vertical", 3),
    Sketcher.Constraint("Horizontal", 4),
    Sketcher.Constraint("Vertical", 5),
    Sketcher.Constraint("Horizontal", 6),
    Sketcher.Constraint("Vertical", 7),
    Sketcher.Constraint("Horizontal", 8),
    Sketcher.Constraint("Vertical", 9),
    Sketcher.Constraint("Horizontal", 10),
    Sketcher.Constraint("Vertical", 11),
    Sketcher.Constraint("Horizontal", 0, 2, 3, 2),
    Sketcher.Constraint("Horizontal", 6, 2, 9, 2),
    Sketcher.Constraint("Equal", 0, 4),
    Sketcher.Constraint("Equal", 6, 10),
    Sketcher.Constraint("DistanceX", 2, 1, 2, 2, Q("17 mm")),
    Sketcher.Constraint("DistanceX", 8, 2, 8, 1, Q("15 mm")),
    Sketcher.Constraint("DistanceY", 1, 1, 1, 2, Q("5 mm")),
    Sketcher.Constraint("DistanceY", 5, 1, 5, 2, Q("1 mm")),
    Sketcher.Constraint("DistanceY", 7, 1, 7, 2, Q("3 mm")),
    Sketcher.Constraint("DistanceX", 0, 2, 0, 1, Q("2.5 mm")),
    Sketcher.Constraint("DistanceY", -1, 1, 0, 2, Q("27 mm")),
    Sketcher.Constraint("DistanceX", -1, 1, 4, 2, Q("27 mm")),
])
pad8 = body.newObject("PartDesign::Pad", "Pad007")
pad8.Profile = sketch16
pad8.Length = 5
pad8.Reversed = True

# Sketch on XZ plane
sketch17 = body.newObject("Sketcher::SketchObject", "Sketch016")
sketch17.AttachmentSupport = (doc.getObject("XZ_Plane"), [""])
sketch17.MapMode = "FlatFace"
sketch17.AttachmentOffset = App.Placement(V(0, 0, -15), App.Rotation())
sketch17.addGeometry([
    Part.LineSegment(V(-1, 27, 0), V(-1, 28, 0)),
    Part.LineSegment(V(-1, 28, 0), V(0, 28, 0)),
    Part.LineSegment(V(0, 28, 0), V(0, 27, 0)),
    Part.LineSegment(V(0, 27, 0), V(-1, 27, 0)),
], False)
sketch17.addConstraint([
    Sketcher.Constraint("Coincident", 0, 2, 1, 1),
    Sketcher.Constraint("Coincident", 1, 2, 2, 1),
    Sketcher.Constraint("Coincident", 2, 2, 3, 1),
    Sketcher.Constraint("Coincident", 3, 2, 0, 1),
    Sketcher.Constraint("Vertical", 0),
    Sketcher.Constraint("Horizontal", 1),
    Sketcher.Constraint("Vertical", 2),
    Sketcher.Constraint("Horizontal", 3),
    Sketcher.Constraint("PointOnObject", 1, 2, -2),
    Sketcher.Constraint("Equal", 3, 0),
    Sketcher.Constraint("DistanceX", 1, 1, 1, 2, Q("1 mm")),
    Sketcher.Constraint("DistanceY", -1, 1, 0, 2, Q("28 mm")),
])
pad9 = body.newObject("PartDesign::Pad", "Pad008")
pad9.Profile = sketch17
pad9.Type = "UpToFirst"
pad9.Reversed = True

doc.recompute()
